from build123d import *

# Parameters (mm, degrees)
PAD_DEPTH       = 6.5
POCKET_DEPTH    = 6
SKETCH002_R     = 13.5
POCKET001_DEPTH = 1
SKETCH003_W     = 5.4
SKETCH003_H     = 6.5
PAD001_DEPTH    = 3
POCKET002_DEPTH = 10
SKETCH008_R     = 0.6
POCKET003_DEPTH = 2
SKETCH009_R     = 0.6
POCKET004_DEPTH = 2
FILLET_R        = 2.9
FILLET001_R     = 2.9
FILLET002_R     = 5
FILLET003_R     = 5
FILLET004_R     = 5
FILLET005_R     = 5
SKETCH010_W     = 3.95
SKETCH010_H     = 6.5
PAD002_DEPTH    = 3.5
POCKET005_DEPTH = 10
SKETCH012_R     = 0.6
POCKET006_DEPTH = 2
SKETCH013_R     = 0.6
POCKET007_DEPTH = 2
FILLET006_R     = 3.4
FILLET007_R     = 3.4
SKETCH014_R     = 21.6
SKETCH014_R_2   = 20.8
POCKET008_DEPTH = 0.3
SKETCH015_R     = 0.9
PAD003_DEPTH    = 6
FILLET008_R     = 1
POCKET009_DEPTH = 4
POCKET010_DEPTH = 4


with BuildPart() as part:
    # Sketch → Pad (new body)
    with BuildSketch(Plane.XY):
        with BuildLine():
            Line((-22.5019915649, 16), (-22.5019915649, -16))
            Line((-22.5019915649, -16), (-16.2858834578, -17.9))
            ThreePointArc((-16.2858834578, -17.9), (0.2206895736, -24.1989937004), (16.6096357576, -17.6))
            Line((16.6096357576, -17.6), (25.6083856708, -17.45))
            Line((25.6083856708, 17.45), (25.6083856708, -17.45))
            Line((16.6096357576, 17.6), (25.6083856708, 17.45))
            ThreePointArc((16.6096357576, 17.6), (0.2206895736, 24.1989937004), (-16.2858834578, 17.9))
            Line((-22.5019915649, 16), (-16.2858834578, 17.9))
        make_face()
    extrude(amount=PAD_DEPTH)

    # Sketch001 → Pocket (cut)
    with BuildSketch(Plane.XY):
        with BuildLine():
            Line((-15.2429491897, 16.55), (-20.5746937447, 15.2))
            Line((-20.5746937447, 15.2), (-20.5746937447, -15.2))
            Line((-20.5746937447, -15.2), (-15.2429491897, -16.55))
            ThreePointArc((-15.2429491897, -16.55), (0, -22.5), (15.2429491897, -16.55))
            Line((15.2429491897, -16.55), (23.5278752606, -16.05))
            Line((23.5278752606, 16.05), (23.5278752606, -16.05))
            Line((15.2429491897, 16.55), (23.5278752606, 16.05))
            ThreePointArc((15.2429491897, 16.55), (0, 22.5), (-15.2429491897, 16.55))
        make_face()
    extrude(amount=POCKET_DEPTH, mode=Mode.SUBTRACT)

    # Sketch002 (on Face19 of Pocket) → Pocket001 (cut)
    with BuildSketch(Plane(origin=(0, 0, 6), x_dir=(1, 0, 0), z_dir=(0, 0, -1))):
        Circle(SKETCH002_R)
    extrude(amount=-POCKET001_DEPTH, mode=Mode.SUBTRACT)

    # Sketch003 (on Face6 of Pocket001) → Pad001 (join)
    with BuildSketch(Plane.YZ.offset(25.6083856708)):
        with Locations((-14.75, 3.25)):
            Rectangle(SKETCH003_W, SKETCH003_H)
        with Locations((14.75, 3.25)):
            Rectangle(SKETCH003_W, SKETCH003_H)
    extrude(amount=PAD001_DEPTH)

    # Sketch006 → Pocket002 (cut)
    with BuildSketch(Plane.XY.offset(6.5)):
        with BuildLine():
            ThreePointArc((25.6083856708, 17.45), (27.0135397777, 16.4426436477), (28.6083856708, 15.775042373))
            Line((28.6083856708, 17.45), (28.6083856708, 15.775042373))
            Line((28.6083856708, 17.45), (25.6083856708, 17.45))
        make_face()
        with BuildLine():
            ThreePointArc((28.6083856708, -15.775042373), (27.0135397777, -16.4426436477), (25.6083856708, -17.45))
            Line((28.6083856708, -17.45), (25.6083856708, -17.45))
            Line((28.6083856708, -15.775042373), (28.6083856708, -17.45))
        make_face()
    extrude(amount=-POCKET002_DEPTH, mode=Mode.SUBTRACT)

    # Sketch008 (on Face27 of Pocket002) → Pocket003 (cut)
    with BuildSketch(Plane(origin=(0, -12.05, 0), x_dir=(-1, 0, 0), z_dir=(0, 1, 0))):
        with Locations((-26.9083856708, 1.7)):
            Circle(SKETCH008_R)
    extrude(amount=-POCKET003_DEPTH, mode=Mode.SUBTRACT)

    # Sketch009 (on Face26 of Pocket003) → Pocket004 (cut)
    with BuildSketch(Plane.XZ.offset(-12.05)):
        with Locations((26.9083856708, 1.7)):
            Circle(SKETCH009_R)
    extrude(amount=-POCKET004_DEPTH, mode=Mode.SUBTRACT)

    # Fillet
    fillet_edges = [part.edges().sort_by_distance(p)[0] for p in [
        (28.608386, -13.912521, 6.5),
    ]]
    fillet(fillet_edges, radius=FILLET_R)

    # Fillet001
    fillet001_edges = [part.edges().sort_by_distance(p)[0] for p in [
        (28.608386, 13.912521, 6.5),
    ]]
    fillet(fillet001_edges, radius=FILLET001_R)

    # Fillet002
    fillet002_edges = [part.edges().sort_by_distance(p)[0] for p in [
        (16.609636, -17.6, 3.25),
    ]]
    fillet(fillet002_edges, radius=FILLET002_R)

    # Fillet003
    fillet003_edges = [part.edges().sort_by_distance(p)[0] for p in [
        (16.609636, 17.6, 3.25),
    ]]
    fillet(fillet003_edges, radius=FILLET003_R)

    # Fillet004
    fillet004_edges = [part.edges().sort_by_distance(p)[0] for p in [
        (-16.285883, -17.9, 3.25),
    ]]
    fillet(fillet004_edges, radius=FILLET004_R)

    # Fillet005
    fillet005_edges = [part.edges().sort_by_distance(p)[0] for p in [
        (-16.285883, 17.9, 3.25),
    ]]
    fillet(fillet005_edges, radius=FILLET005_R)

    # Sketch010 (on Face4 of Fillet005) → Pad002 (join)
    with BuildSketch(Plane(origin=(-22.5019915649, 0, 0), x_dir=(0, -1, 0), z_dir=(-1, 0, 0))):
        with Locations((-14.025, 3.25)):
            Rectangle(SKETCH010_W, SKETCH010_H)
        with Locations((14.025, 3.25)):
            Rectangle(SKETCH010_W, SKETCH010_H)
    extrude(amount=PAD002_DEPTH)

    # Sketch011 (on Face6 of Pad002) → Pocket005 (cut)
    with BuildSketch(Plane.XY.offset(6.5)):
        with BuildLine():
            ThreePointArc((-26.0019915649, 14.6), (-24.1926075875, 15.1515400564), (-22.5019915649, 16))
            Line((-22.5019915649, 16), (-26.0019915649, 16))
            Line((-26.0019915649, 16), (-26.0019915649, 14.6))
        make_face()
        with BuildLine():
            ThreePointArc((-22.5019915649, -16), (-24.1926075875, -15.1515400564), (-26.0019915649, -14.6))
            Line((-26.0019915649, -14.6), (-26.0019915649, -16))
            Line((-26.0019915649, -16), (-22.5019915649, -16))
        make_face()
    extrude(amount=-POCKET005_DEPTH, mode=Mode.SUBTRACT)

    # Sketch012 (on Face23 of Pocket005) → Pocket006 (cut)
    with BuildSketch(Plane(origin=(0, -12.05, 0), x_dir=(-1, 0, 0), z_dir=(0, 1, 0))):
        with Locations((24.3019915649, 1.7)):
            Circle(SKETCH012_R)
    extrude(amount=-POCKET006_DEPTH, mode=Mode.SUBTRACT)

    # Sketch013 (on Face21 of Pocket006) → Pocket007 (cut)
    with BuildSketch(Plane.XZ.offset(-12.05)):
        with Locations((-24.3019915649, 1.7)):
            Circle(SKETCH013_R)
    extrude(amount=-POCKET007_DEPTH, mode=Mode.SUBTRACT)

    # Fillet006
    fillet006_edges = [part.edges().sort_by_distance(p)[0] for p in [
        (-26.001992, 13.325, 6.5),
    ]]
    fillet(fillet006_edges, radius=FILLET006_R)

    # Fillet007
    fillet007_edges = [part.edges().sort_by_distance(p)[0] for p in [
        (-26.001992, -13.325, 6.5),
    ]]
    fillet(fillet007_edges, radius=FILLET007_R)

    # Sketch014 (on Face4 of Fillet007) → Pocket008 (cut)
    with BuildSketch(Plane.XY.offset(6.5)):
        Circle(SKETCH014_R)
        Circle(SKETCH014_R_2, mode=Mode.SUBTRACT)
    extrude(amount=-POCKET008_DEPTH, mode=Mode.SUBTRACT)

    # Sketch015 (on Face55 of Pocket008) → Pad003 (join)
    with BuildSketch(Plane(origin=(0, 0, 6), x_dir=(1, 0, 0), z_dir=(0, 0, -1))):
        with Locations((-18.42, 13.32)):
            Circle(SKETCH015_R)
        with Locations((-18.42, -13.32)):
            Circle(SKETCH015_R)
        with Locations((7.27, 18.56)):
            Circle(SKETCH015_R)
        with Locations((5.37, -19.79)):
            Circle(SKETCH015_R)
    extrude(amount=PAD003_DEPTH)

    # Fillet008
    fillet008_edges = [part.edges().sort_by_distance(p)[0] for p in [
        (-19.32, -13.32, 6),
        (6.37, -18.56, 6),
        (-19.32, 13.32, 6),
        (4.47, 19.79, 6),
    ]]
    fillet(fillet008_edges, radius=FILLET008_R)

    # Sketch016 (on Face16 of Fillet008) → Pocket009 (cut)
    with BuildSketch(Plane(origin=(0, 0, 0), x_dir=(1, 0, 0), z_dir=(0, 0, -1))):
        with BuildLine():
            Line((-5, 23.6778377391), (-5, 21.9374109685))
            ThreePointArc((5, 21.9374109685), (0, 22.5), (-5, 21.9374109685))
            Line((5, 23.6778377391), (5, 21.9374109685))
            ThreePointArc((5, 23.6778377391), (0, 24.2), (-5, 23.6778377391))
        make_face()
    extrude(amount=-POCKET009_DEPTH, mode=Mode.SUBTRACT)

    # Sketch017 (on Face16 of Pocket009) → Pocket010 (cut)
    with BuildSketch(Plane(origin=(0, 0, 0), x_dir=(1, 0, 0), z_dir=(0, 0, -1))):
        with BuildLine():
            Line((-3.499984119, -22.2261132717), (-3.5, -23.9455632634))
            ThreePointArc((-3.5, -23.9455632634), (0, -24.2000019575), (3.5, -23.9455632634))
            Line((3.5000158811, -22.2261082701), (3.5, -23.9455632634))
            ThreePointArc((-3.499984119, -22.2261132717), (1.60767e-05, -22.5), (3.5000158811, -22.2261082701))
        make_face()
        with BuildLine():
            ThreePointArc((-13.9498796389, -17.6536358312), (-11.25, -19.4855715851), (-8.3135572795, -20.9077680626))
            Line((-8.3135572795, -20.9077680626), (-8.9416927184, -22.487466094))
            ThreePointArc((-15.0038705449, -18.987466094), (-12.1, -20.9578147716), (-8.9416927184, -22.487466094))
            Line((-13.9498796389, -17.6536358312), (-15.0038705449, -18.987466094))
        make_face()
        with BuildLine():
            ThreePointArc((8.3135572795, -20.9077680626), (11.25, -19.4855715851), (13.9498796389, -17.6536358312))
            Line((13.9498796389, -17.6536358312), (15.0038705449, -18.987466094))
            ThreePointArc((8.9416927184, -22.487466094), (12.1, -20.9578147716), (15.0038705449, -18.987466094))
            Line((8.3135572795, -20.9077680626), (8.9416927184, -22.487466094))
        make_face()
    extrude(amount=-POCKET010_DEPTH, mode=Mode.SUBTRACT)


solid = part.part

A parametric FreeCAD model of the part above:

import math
import FreeCAD as App
import Part
import Sketcher
Q = App.Units.Quantity


def edges_at(feature, points):
    """Names of the edges that pass closest to the given points."""
    edges = feature.Shape.Edges
    near = lambda p: min(range(len(edges)), key=lambda i: edges[i].distToShape(Part.Vertex(*p))[0])
    return sorted({f"Edge{near(p) + 1}" for p in points})


def add_polygon(sketch, points):
    """Adds a closed chain of lines whose ends are joined by coincident constraints."""
    first, n = sketch.GeometryCount, len(points)
    for a, b in zip(points, points[1:] + points[:1]):
        sketch.addGeometry(Part.LineSegment(App.Vector(*a, 0), App.Vector(*b, 0)), False)
    for i in range(n):
        sketch.addConstraint(Sketcher.Constraint("Coincident", first + i, 2, first + (i + 1) % n, 1))

doc = App.newDocument("Part")
params = doc.addObject("Spreadsheet::Sheet", "Params")
for row, (alias, value) in enumerate([
    ("sketch1_radius", "24.2 mm"),
    ("sketch1_height", "32 mm"),
    ("sketch1_length", "9 mm"),
    ("sketch1_height2", "34.9 mm"),
    ("sketch1_length2", "6.5 mm"),
    ("pad1_length", "6.5 mm"),
    ("sketch2_radius", "22.5 mm"),
    ("sketch2_height", "30.4 mm"),
    ("sketch2_height2", "32.1 mm"),
    ("sketch2_length", "5.5 mm"),
    ("sketch2_length2", "8.3 mm"),
    ("pocket1_length", "6 mm"),
    ("sketch3_diameter", "27 mm"),
    ("pocket2_length", "1 mm"),
    ("sketch4_width", "5.4 mm"),
    ("sketch4_height", "6.5 mm"),
    ("pad2_length", "3 mm"),
    ("sketch5_width", "3 mm"),
    ("pocket3_length", "10 mm"),
    ("sketch6_diameter", "1.2 mm"),
    ("pocket4_length", "2 mm"),
    ("sketch7_diameter", "1.2 mm"),
    ("pocket5_length", "2 mm"),
    ("fillet_radius", "2.9 mm"),
    ("fillet2_radius", "2.9 mm"),
    ("fillet3_radius", "5 mm"),
    ("fillet4_radius", "5 mm"),
    ("fillet5_radius", "5 mm"),
    ("fillet6_radius", "5 mm"),
    ("sketch8_height", "6.5 mm"),
    ("sketch8_width", "3.95 mm"),
    ("pad3_length", "3.5 mm"),
    ("sketch9_width", "3.5 mm"),
    ("sketch9_height", "1.4 mm"),
    ("pocket6_length", "10 mm"),
    ("sketch10_diameter", "1.2 mm"),
    ("pocket7_length", "2 mm"),
    ("sketch11_diameter", "1.2 mm"),
    ("pocket8_length", "2 mm"),
    ("fillet7_radius", "3.4 mm"),
    ("fillet8_radius", "3.4 mm"),
    ("sketch12_diameter", "43.2 mm"),
    ("sketch12_diameter2", "41.6 mm"),
    ("pocket9_length", "0.3 mm"),
    ("sketch13_diameter", "1.8 mm"),
    ("pad4_length", "6 mm"),
    ("fillet9_radius", "1 mm"),
    ("sketch14_radius", "22.5 mm"),
    ("sketch14_radius2", "24.2 mm"),
    ("pocket10_length", "4 mm"),
    ("sketch15_radius", "22.5 mm"),
    ("sketch15_radius2", "24.2 mm"),
    ("pocket11_length", "4 mm"),
], start=1):
    params.set(f"A{row}", alias)
    params.set(f"B{row}", "=" + value)
    params.setAlias(f"B{row}", alias)

body = doc.addObject("PartDesign::Body", "Body")

# Sketch on XY plane
sketch1 = body.newObject("Sketcher::SketchObject", "Sketch")
sketch1.AttachmentSupport = (doc.getObject("XY_Plane"), [""])
sketch1.MapMode = "FlatFace"
sketch1.addGeometry(Part.LineSegment(App.Vector(-23, 16, 0), App.Vector(-23, -16, 0)), False)
sketch1.addGeometry(Part.LineSegment(App.Vector(-23, -16, 0), App.Vector(-16, -18, 0)), False)
sketch1.addGeometry(Part.ArcOfCircle(Part.Circle(App.Vector(0, 0, 0), App.Vector(0, 0, 1), 24), math.radians(-132), math.radians(-47)), False)
sketch1.addGeometry(Part.LineSegment(App.Vector(17, -18, 0), App.Vector(26, -17, 0)), False)
sketch1.addGeometry(Part.LineSegment(App.Vector(26, -17, 0), App.Vector(26, 17, 0)), False)
sketch1.addGeometry(Part.LineSegment(App.Vector(26, 17, 0), App.Vector(17, 18, 0)), False)
sketch1.addGeometry(Part.ArcOfCircle(Part.Circle(App.Vector(0, 0, 0), App.Vector(0, 0, 1), 24), math.radians(47), math.radians(132)), False)
sketch1.addGeometry(Part.LineSegment(App.Vector(-16, 18, 0), App.Vector(-23, 16, 0)), False)
sketch1.addConstraint(Sketcher.Constraint("Coincident", 0, 2, 1, 1))
sketch1.addConstraint(Sketcher.Constraint("Coincident", 1, 2, 2, 1))
sketch1.addConstraint(Sketcher.Constraint("Coincident", 2, 2, 3, 1))
sketch1.addConstraint(Sketcher.Constraint("Coincident", 3, 2, 4, 1))
sketch1.addConstraint(Sketcher.Constraint("Coincident", 4, 2, 5, 1))
sketch1.addConstraint(Sketcher.Constraint("Coincident", 5, 2, 6, 1))
sketch1.addConstraint(Sketcher.Constraint("Coincident", 6, 2, 7, 1))
sketch1.addConstraint(Sketcher.Constraint("Coincident", 7, 2, 0, 1))
sketch1.addConstraint(Sketcher.Constraint("Vertical", 0))
sketch1.addConstraint(Sketcher.Constraint("Vertical", 4))
sketch1.addConstraint(Sketcher.Constraint("Coincident", 2, 3, -1, 1))
sketch1.addConstraint(Sketcher.Constraint("Coincident", 6, 3, -1, 1))
sketch1.addConstraint(Sketcher.Constraint("Equal", 2, 6))
sketch1.addConstraint(Sketcher.Constraint("Vertical", 2, 2, 5, 2))
sketch1.addConstraint(Sketcher.Constraint("Vertical", 1, 2, 6, 2))
sketch1.addConstraint(Sketcher.Constraint("Equal", 3, 5))
sketch1.addConstraint(Sketcher.Constraint("Equal", 1, 7))
sketch1.addConstraint(Sketcher.Constraint("Radius", 2, Q("24.2 mm")))
sketch1.addConstraint(Sketcher.Constraint("DistanceY", 0, 2, 0, 1, Q("32 mm")))
sketch1.addConstraint(Sketcher.Constraint("Distance", 3, Q("9 mm")))
sketch1.addConstraint(Sketcher.Constraint("DistanceY", 4, 1, 4, 2, Q("34.9 mm")))
sketch1.addConstraint(Sketcher.Constraint("Distance", 1, Q("6.5 mm")))
sketch1.addConstraint(Sketcher.Constraint("DistanceY", 1, 2, -1, 1, Q("17.9 mm")))
sketch1.addConstraint(Sketcher.Constraint("DistanceY", 2, 2, -1, 1, Q("17.6 mm")))
sketch1.setExpression("Constraints[17]", "Params.sketch1_radius")
sketch1.setExpression("Constraints[18]", "Params.sketch1_height")
sketch1.setExpression("Constraints[19]", "Params.sketch1_length")
sketch1.setExpression("Constraints[20]", "Params.sketch1_height2")
sketch1.setExpression("Constraints[21]", "Params.sketch1_length2")
pad1 = body.newObject("PartDesign::Pad", "Pad")
pad1.Profile = sketch1
pad1.setExpression("Length", "Params.pad1_length")

# Sketch on XY plane
sketch2 = body.newObject("Sketcher::SketchObject", "Sketch001")
sketch2.AttachmentSupport = (doc.getObject("XY_Plane"), [""])
sketch2.MapMode = "FlatFace"
sketch2.addGeometry(Part.LineSegment(App.Vector(-15, 17, 0), App.Vector(-21, 15, 0)), False)
sketch2.addGeometry(Part.LineSegment(App.Vector(-21, 15, 0), App.Vector(-21, -15, 0)), False)
sketch2.addGeometry(Part.LineSegment(App.Vector(-21, -15, 0), App.Vector(-15, -17, 0)), False)
sketch2.addGeometry(Part.ArcOfCircle(Part.Circle(App.Vector(0, 0, 0), App.Vector(0, 0, 1), 22), math.radians(-133), math.radians(-47)), False)
sketch2.addGeometry(Part.LineSegment(App.Vector(15, -17, 0), App.Vector(24, -16, 0)), False)
sketch2.addGeometry(Part.LineSegment(App.Vector(24, -16, 0), App.Vector(24, 16, 0)), False)
sketch2.addGeometry(Part.LineSegment(App.Vector(24, 16, 0), App.Vector(15, 17, 0)), False)
sketch2.addGeometry(Part.ArcOfCircle(Part.Circle(App.Vector(0, 0, 0), App.Vector(0, 0, 1), 22), math.radians(47), math.radians(133)), False)
sketch2.addConstraint(Sketcher.Constraint("Coincident", 0, 2, 1, 1))
sketch2.addConstraint(Sketcher.Constraint("Coincident", 1, 2, 2, 1))
sketch2.addConstraint(Sketcher.Constraint("Coincident", 2, 2, 3, 1))
sketch2.addConstraint(Sketcher.Constraint("Coincident", 3, 2, 4, 1))
sketch2.addConstraint(Sketcher.Constraint("Coincident", 4, 2, 5, 1))
sketch2.addConstraint(Sketcher.Constraint("Coincident", 5, 2, 6, 1))
sketch2.addConstraint(Sketcher.Constraint("Coincident", 6, 2, 7, 1))
sketch2.addConstraint(Sketcher.Constraint("Coincident", 7, 2, 0, 1))
sketch2.addConstraint(Sketcher.Constraint("Vertical", 1))
sketch2.addConstraint(Sketcher.Constraint("Vertical", 5))
sketch2.addConstraint(Sketcher.Constraint("Coincident", 3, 3, -1, 1))
sketch2.addConstraint(Sketcher.Constraint("Coincident", 7, 3, -1, 1))
sketch2.addConstraint(Sketcher.Constraint("Equal", 3, 7))
sketch2.addConstraint(Sketcher.Constraint("Horizontal", 2, 2, 3, 2))
sketch2.addConstraint(Sketcher.Constraint("Horizontal", 6, 2, 7, 2))
sketch2.addConstraint(Sketcher.Constraint("Vertical", 3, 2, 6, 2))
sketch2.addConstraint(Sketcher.Constraint("Equal", 0, 2))
sketch2.addConstraint(Sketcher.Constraint("Equal", 4, 6))
sketch2.addConstraint(Sketcher.Constraint("Radius", 3, Q("22.5 mm")))
sketch2.addConstraint(Sketcher.Constraint("DistanceY", 1, 2, 1, 1, Q("30.4 mm")))
sketch2.addConstraint(Sketcher.Constraint("DistanceY", 5, 1, 5, 2, Q("32.1 mm")))
sketch2.addConstraint(Sketcher.Constraint("Distance", 0, Q("5.5 mm")))
sketch2.addConstraint(Sketcher.Constraint("Distance", 4, Q("8.3 mm")))
sketch2.addConstraint(Sketcher.Constraint("DistanceY", 3, 2, 4, 2, Q("0.5 mm")))
sketch2.setExpression("Constraints[18]", "Params.sketch2_radius")
sketch2.setExpression("Constraints[19]", "Params.sketch2_height")
sketch2.setExpression("Constraints[20]", "Params.sketch2_height2")
sketch2.setExpression("Constraints[21]", "Params.sketch2_length")
sketch2.setExpression("Constraints[22]", "Params.sketch2_length2")
pocket1 = body.newObject("PartDesign::Pocket", "Pocket")
pocket1.Profile = sketch2
pocket1.setExpression("Length", "Params.pocket1_length")
pocket1.Reversed = True

# Sketch on XY plane
sketch3 = body.newObject("Sketcher::SketchObject", "Sketch002")
sketch3.AttachmentSupport = (doc.getObject("XY_Plane"), [""])
sketch3.MapMode = "FlatFace"
sketch3.AttachmentOffset = App.Placement(App.Vector(0, 0, 6), App.Rotation())
sketch3.addGeometry(Part.Circle(App.Vector(0, 0, 0), App.Vector(0, 0, 1), 14), False)
sketch3.addConstraint(Sketcher.Constraint("Coincident", 0, 3, -1, 1))
sketch3.addConstraint(Sketcher.Constraint("Diameter", 0, Q("27 mm")))
sketch3.setExpression("Constraints[1]", "Params.sketch3_diameter")
pocket2 = body.newObject("PartDesign::Pocket", "Pocket001")
pocket2.Profile = sketch3
pocket2.setExpression("Length", "Params.pocket2_length")
pocket2.Reversed = True

# Sketch on YZ plane
sketch4 = body.newObject("Sketcher::SketchObject", "Sketch003")
sketch4.AttachmentSupport = (doc.getObject("YZ_Plane"), [""])
sketch4.MapMode = "FlatFace"
sketch4.AttachmentOffset = App.Placement(App.Vector(0, 0, 25.608386), App.Rotation())
add_polygon(sketch4, [(-17, 6), (-17, 0), (-12, 0), (-12, 6)])  # lines 0-3
add_polygon(sketch4, [(12, 6), (12, 0), (17, 0), (17, 6)])  # lines 4-7
sketch4.addConstraint(Sketcher.Constraint("Vertical", 0))
sketch4.addConstraint(Sketcher.Constraint("Horizontal", 1))
sketch4.addConstraint(Sketcher.Constraint("Vertical", 2))
sketch4.addConstraint(Sketcher.Constraint("Horizontal", 3))
sketch4.addConstraint(Sketcher.Constraint("Vertical", 4))
sketch4.addConstraint(Sketcher.Constraint("Horizontal", 5))
sketch4.addConstraint(Sketcher.Constraint("Vertical", 6))
sketch4.addConstraint(Sketcher.Constraint("Horizontal", 7))
sketch4.addConstraint(Sketcher.Constraint("Symmetric", 1, 2, 4, 2, -1, 1))
sketch4.addConstraint(Sketcher.Constraint("Symmetric", 0, 2, 5, 2, -2))
sketch4.addConstraint(Sketcher.Constraint("Horizontal", 3, 2, 6, 2))
sketch4.addConstraint(Sketcher.Constraint("DistanceX", 1, 1, 1, 2, Q("5.4 mm")))
sketch4.addConstraint(Sketcher.Constraint("DistanceY", 0, 2, 0, 1, Q("6.5 mm")))
sketch4.addConstraint(Sketcher.Constraint("DistanceX", 1, 2, 4, 2, Q("24.1 mm")))
sketch4.setExpression("Constraints[19]", "Params.sketch4_width")
sketch4.setExpression("Constraints[20]", "Params.sketch4_height")
pad2 = body.newObject("PartDesign::Pad", "Pad001")
pad2.Profile = sketch4
pad2.setExpression("Length", "Params.pad2_length")

# Sketch on XY plane
sketch5 = body.newObject("Sketcher::SketchObject", "Sketch004")
sketch5.AttachmentSupport = (doc.getObject("XY_Plane"), [""])
sketch5.MapMode = "FlatFace"
sketch5.AttachmentOffset = App.Placement(App.Vector(0, 0, 6.5), App.Rotation())
sketch5.addGeometry(Part.ArcOfCircle(Part.Circle(App.Vector(30.8, 23.1, 0), App.Vector(0, 0, 1), 7.7), math.radians(-132), math.radians(-106)), False)
sketch5.addGeometry(Part.LineSegment(App.Vector(28.6, 15.8, 0), App.Vector(28.6, 17.4, 0)), False)
sketch5.addGeometry(Part.LineSegment(App.Vector(28.6, 17.4, 0), App.Vector(25.6, 17.4, 0)), False)
sketch5.addGeometry(Part.ArcOfCircle(Part.Circle(App.Vector(30.8, -23.1, 0), App.Vector(0, 0, 1), 7.7), math.radians(106), math.radians(132)), False)
sketch5.addGeometry(Part.LineSegment(App.Vector(25.6, -17.4, 0), App.Vector(28.6, -17.4, 0)), False)
sketch5.addGeometry(Part.LineSegment(App.Vector(28.6, -17.4, 0), App.Vector(28.6, -15.8, 0)), False)
sketch5.addConstraint(Sketcher.Constraint("Coincident", 0, 2, 1, 1))
sketch5.addConstraint(Sketcher.Constraint("Coincident", 1, 2, 2, 1))
sketch5.addConstraint(Sketcher.Constraint("Coincident", 2, 2, 0, 1))
sketch5.addConstraint(Sketcher.Constraint("Coincident", 3, 2, 4, 1))
sketch5.addConstraint(Sketcher.Constraint("Coincident", 4, 2, 5, 1))
sketch5.addConstraint(Sketcher.Constraint("Coincident", 5, 2, 3, 1))
sketch5.addConstraint(Sketcher.Constraint("Vertical", 1))
sketch5.addConstraint(Sketcher.Constraint("Horizontal", 2))
sketch5.addConstraint(Sketcher.Constraint("Horizontal", 4))
sketch5.addConstraint(Sketcher.Constraint("Vertical", 5))
sketch5.addConstraint(Sketcher.Constraint("Equal", 0, 3))
sketch5.addConstraint(Sketcher.Constraint("Symmetric", 0, 3, 3, 3, -1))
sketch5.addConstraint(Sketcher.Constraint("Symmetric", 1, 2, 4, 2, -1))
sketch5.addConstraint(Sketcher.Constraint("DistanceX", 2, 2, 2, 1, Q("3 mm")))
sketch5.addConstraint(Sketcher.Constraint("DistanceY", 3, 3, 0, 3, Q("46.3 mm")))
sketch5.addConstraint(Sketcher.Constraint("DistanceY", 1, 2, 0, 3, Q("5.7 mm")))
sketch5.addConstraint(Sketcher.Constraint("Radius", 0, Q("7.681959 mm")))
sketch5.addConstraint(Sketcher.Constraint("DistanceX", -1, 1, 0, 3, Q("30.758386 mm")))
sketch5.setExpression("Constraints[13]", "Params.sketch5_width")
pocket3 = body.newObject("PartDesign::Pocket", "Pocket002")
pocket3.Profile = sketch5
pocket3.setExpression("Length", "Params.pocket3_length")

# Sketch on XZ plane
sketch6 = body.newObject("Sketcher::SketchObject", "Sketch005")
sketch6.AttachmentSupport = (doc.getObject("XZ_Plane"), [""])
sketch6.MapMode = "FlatFace"
sketch6.AttachmentOffset = App.Placement(App.Vector(0, 0, 12.05), App.Rotation())
sketch6.addGeometry(Part.Circle(App.Vector(26.9, 1.7, 0), App.Vector(0, 0, 1), 0.6), False)
sketch6.addConstraint(Sketcher.Constraint("Diameter", 0, Q("1.2 mm")))
sketch6.addConstraint(Sketcher.Constraint("DistanceY", -1, 1, 0, 3, Q("1.7 mm")))
sketch6.addConstraint(Sketcher.Constraint("DistanceX", -1, 1, 0, 3, Q("26.908386 mm")))
sketch6.setExpression("Constraints[0]", "Params.sketch6_diameter")
pocket4 = body.newObject("PartDesign::Pocket", "Pocket003")
pocket4.Profile = sketch6
pocket4.setExpression("Length", "Params.pocket4_length")
pocket4.Reversed = True

# Sketch on XZ plane
sketch7 = body.newObject("Sketcher::SketchObject", "Sketch006")
sketch7.AttachmentSupport = (doc.getObject("XZ_Plane"), [""])
sketch7.MapMode = "FlatFace"
sketch7.AttachmentOffset = App.Placement(App.Vector(0, 0, -12.05), App.Rotation())
sketch7.addGeometry(Part.Circle(App.Vector(26.9, 1.7, 0), App.Vector(0, 0, 1), 0.6), False)
sketch7.addConstraint(Sketcher.Constraint("Diameter", 0, Q("1.2 mm")))
sketch7.addConstraint(Sketcher.Constraint("DistanceY", -1, 1, 0, 3, Q("1.7 mm")))
sketch7.addConstraint(Sketcher.Constraint("DistanceX", -1, 1, 0, 3, Q("26.908386 mm")))
sketch7.setExpression("Constraints[0]", "Params.sketch7_diameter")
pocket5 = body.newObject("PartDesign::Pocket", "Pocket004")
pocket5.Profile = sketch7
pocket5.setExpression("Length", "Params.pocket5_length")
doc.recompute()

fillet = body.newObject("PartDesign::Fillet", "Fillet")
fillet.Base = (pocket5, edges_at(pocket5, [(28.608, -13.913, 6.5)]))
fillet.setExpression("Radius", "Params.fillet_radius")
doc.recompute()

fillet2 = body.newObject("PartDesign::Fillet", "Fillet001")
fillet2.Base = (fillet, edges_at(fillet, [(28.608, 13.913, 6.5)]))
fillet2.setExpression("Radius", "Params.fillet2_radius")
doc.recompute()

fillet3 = body.newObject("PartDesign::Fillet", "Fillet002")
fillet3.Base = (fillet2, edges_at(fillet2, [(16.61, -17.6, 3.25)]))
fillet3.setExpression("Radius", "Params.fillet3_radius")
doc.recompute()

fillet4 = body.newObject("PartDesign::Fillet", "Fillet003")
fillet4.Base = (fillet3, edges_at(fillet3, [(16.61, 17.6, 3.25)]))
fillet4.setExpression("Radius", "Params.fillet4_radius")
doc.recompute()

fillet5 = body.newObject("PartDesign::Fillet", "Fillet004")
fillet5.Base = (fillet4, edges_at(fillet4, [(-16.286, -17.9, 3.25)]))
fillet5.setExpression("Radius", "Params.fillet5_radius")
doc.recompute()

fillet6 = body.newObject("PartDesign::Fillet", "Fillet005")
fillet6.Base = (fillet5, edges_at(fillet5, [(-16.286, 17.9, 3.25)]))
fillet6.setExpression("Radius", "Params.fillet6_radius")

# Sketch on YZ plane
sketch8 = body.newObject("Sketcher::SketchObject", "Sketch007")
sketch8.AttachmentSupport = (doc.getObject("YZ_Plane"), [""])
sketch8.MapMode = "FlatFace"
sketch8.AttachmentOffset = App.Placement(App.Vector(0, 0, -22.501992), App.Rotation())
add_polygon(sketch8, [(16, 6.5), (16, 0), (12.1, 0), (12.1, 6.5)])  # lines 0-3
add_polygon(sketch8, [(-12.1, 6.5), (-12.1, 0), (-16, 0), (-16, 6.5)])  # lines 4-7
sketch8.addConstraint(Sketcher.Constraint("Vertical", 0))
sketch8.addConstraint(Sketcher.Constraint("Horizontal", 1))
sketch8.addConstraint(Sketcher.Constraint("Vertical", 2))
sketch8.addConstraint(Sketcher.Constraint("Horizontal", 3))
sketch8.addConstraint(Sketcher.Constraint("Vertical", 4))
sketch8.addConstraint(Sketcher.Constraint("Horizontal", 5))
sketch8.addConstraint(Sketcher.Constraint("Vertical", 6))
sketch8.addConstraint(Sketcher.Constraint("Horizontal", 7))
sketch8.addConstraint(Sketcher.Constraint("Symmetric", 1, 2, 4, 2, -1, 1))
sketch8.addConstraint(Sketcher.Constraint("Symmetric", 0, 2, 5, 2, -2))
sketch8.addConstraint(Sketcher.Constraint("Horizontal", 3, 2, 6, 2))
sketch8.addConstraint(Sketcher.Constraint("DistanceY", 0, 2, 0, 1, Q("6.5 mm")))
sketch8.addConstraint(Sketcher.Constraint("DistanceX", -1, 1, 0, 2, Q("16 mm")))
sketch8.addConstraint(Sketcher.Constraint("DistanceX", 1, 2, 1, 1, Q("3.95 mm")))
sketch8.setExpression("Constraints[19]", "Params.sketch8_height")
sketch8.setExpression("Constraints[21]", "Params.sketch8_width")
pad3 = body.newObject("PartDesign::Pad", "Pad002")
pad3.Profile = sketch8
pad3.setExpression("Length", "Params.pad3_length")
pad3.Reversed = True

# Sketch on XY plane
sketch9 = body.newObject("Sketcher::SketchObject", "Sketch008")
sketch9.AttachmentSupport = (doc.getObject("XY_Plane"), [""])
sketch9.MapMode = "FlatFace"
sketch9.AttachmentOffset = App.Placement(App.Vector(0, 0, 6.5), App.Rotation())
sketch9.addGeometry(Part.ArcOfCircle(Part.Circle(App.Vector(-28.3, 25.5, 0), App.Vector(0, 0, 1), 11.2), math.radians(-77.9), math.radians(-58.5)), False)
sketch9.addGeometry(Part.LineSegment(App.Vector(-22.5, 16, 0), App.Vector(-26, 16, 0)), False)
sketch9.addGeometry(Part.LineSegment(App.Vector(-26, 16, 0), App.Vector(-26, 14.6, 0)), False)
sketch9.addGeometry(Part.ArcOfCircle(Part.Circle(App.Vector(-28.3, -25.5, 0), App.Vector(0, 0, 1), 11.2), math.radians(58.5), math.radians(77.9)), False)
sketch9.addGeometry(Part.LineSegment(App.Vector(-26, -14.6, 0), App.Vector(-26, -16, 0)), False)
sketch9.addGeometry(Part.LineSegment(App.Vector(-26, -16, 0), App.Vector(-22.5, -16, 0)), False)
sketch9.addConstraint(Sketcher.Constraint("Coincident", 0, 2, 1, 1))
sketch9.addConstraint(Sketcher.Constraint("Coincident", 1, 2, 2, 1))
sketch9.addConstraint(Sketcher.Constraint("Coincident", 2, 2, 0, 1))
sketch9.addConstraint(Sketcher.Constraint("Coincident", 3, 2, 4, 1))
sketch9.addConstraint(Sketcher.Constraint("Coincident", 4, 2, 5, 1))
sketch9.addConstraint(Sketcher.Constraint("Coincident", 5, 2, 3, 1))
sketch9.addConstraint(Sketcher.Constraint("Horizontal", 1))
sketch9.addConstraint(Sketcher.Constraint("Vertical", 2))
sketch9.addConstraint(Sketcher.Constraint("Vertical", 4))
sketch9.addConstraint(Sketcher.Constraint("Horizontal", 5))
sketch9.addConstraint(Sketcher.Constraint("Equal", 0, 3))
sketch9.addConstraint(Sketcher.Constraint("Symmetric", 0, 3, 3, 3, -1))
sketch9.addConstraint(Sketcher.Constraint("Symmetric", 1, 2, 4, 2, -1))
sketch9.addConstraint(Sketcher.Constraint("DistanceX", 1, 2, 1, 1, Q("3.5 mm")))
sketch9.addConstraint(Sketcher.Constraint("DistanceY", 2, 2, 2, 1, Q("1.4 mm")))
sketch9.addConstraint(Sketcher.Constraint("DistanceY", -1, 1, 0, 2, Q("16 mm")))
sketch9.addConstraint(Sketcher.Constraint("DistanceY", -1, 1, 0, 3, Q("25.54 mm")))
sketch9.addConstraint(Sketcher.Constraint("DistanceX", 0, 3, -1, 1, Q("28.347992 mm")))
sketch9.setExpression("Constraints[13]", "Params.sketch9_width")
sketch9.setExpression("Constraints[14]", "Params.sketch9_height")
pocket6 = body.newObject("PartDesign::Pocket", "Pocket005")
pocket6.Profile = sketch9
pocket6.setExpression("Length", "Params.pocket6_length")

# Sketch on XZ plane
sketch10 = body.newObject("Sketcher::SketchObject", "Sketch009")
sketch10.AttachmentSupport = (doc.getObject("XZ_Plane"), [""])
sketch10.MapMode = "FlatFace"
sketch10.AttachmentOffset = App.Placement(App.Vector(0, 0, 12.05), App.Rotation())
sketch10.addGeometry(Part.Circle(App.Vector(-24.3, 1.7, 0), App.Vector(0, 0, 1), 0.6), False)
sketch10.addConstraint(Sketcher.Constraint("Diameter", 0, Q("1.2 mm")))
sketch10.addConstraint(Sketcher.Constraint("DistanceY", -1, 1, 0, 3, Q("1.7 mm")))
sketch10.addConstraint(Sketcher.Constraint("DistanceX", 0, 3, -1, 1, Q("24.301992 mm")))
sketch10.setExpression("Constraints[0]", "Params.sketch10_diameter")
pocket7 = body.newObject("PartDesign::Pocket", "Pocket006")
pocket7.Profile = sketch10
pocket7.setExpression("Length", "Params.pocket7_length")
pocket7.Reversed = True

# Sketch on XZ plane
sketch11 = body.newObject("Sketcher::SketchObject", "Sketch010")
sketch11.AttachmentSupport = (doc.getObject("XZ_Plane"), [""])
sketch11.MapMode = "FlatFace"
sketch11.AttachmentOffset = App.Placement(App.Vector(0, 0, -12.05), App.Rotation())
sketch11.addGeometry(Part.Circle(App.Vector(-24.3, 1.7, 0), App.Vector(0, 0, 1), 0.6), False)
sketch11.addConstraint(Sketcher.Constraint("Diameter", 0, Q("1.2 mm")))
sketch11.addConstraint(Sketcher.Constraint("DistanceY", -1, 1, 0, 3, Q("1.7 mm")))
sketch11.addConstraint(Sketcher.Constraint("DistanceX", 0, 3, -1, 1, Q("24.301992 mm")))
sketch11.setExpression("Constraints[0]", "Params.sketch11_diameter")
pocket8 = body.newObject("PartDesign::Pocket", "Pocket007")
pocket8.Profile = sketch11
pocket8.setExpression("Length", "Params.pocket8_length")
doc.recompute()

fillet7 = body.newObject("PartDesign::Fillet", "Fillet006")
fillet7.Base = (pocket8, edges_at(pocket8, [(-26.002, 13.325, 6.5)]))
fillet7.setExpression("Radius", "Params.fillet7_radius")
doc.recompute()

fillet8 = body.newObject("PartDesign::Fillet", "Fillet007")
fillet8.Base = (fillet7, edges_at(fillet7, [(-26.002, -13.325, 6.5)]))
fillet8.setExpression("Radius", "Params.fillet8_radius")

# Sketch on XY plane
sketch12 = body.newObject("Sketcher::SketchObject", "Sketch011")
sketch12.AttachmentSupport = (doc.getObject("XY_Plane"), [""])
sketch12.MapMode = "FlatFace"
sketch12.AttachmentOffset = App.Placement(App.Vector(0, 0, 6.5), App.Rotation())
sketch12.addGeometry(Part.Circle(App.Vector(0, 0, 0), App.Vector(0, 0, 1), 22), False)
sketch12.addGeometry(Part.Circle(App.Vector(0, 0, 0), App.Vector(0, 0, 1), 21), False)
sketch12.addConstraint(Sketcher.Constraint("Coincident", 0, 3, -1, 1))
sketch12.addConstraint(Sketcher.Constraint("Coincident", 1, 3, -1, 1))
sketch12.addConstraint(Sketcher.Constraint("Diameter", 0, Q("43.2 mm")))
sketch12.addConstraint(Sketcher.Constraint("Diameter", 1, Q("41.6 mm")))
sketch12.setExpression("Constraints[2]", "Params.sketch12_diameter")
sketch12.setExpression("Constraints[3]", "Params.sketch12_diameter2")
pocket9 = body.newObject("PartDesign::Pocket", "Pocket008")
pocket9.Profile = sketch12
pocket9.setExpression("Length", "Params.pocket9_length")

# Sketch on XY plane
sketch13 = body.newObject("Sketcher::SketchObject", "Sketch012")
sketch13.AttachmentSupport = (doc.getObject("XY_Plane"), [""])
sketch13.MapMode = "FlatFace"
sketch13.AttachmentOffset = App.Placement(App.Vector(0, 0, 6), App.Rotation())
sketch13.addGeometry(Part.Circle(App.Vector(-18.4, -13.3, 0), App.Vector(0, 0, 1), 0.9), False)
sketch13.addGeometry(Part.Circle(App.Vector(-18.4, 13.3, 0), App.Vector(0, 0, 1), 0.9), False)
sketch13.addGeometry(Part.Circle(App.Vector(7.3, -18.6, 0), App.Vector(0, 0, 1), 0.9), False)
sketch13.addGeometry(Part.Circle(App.Vector(5.4, 19.8, 0), App.Vector(0, 0, 1), 0.9), False)
sketch13.addConstraint(Sketcher.Constraint("Equal", 0, 1))
sketch13.addConstraint(Sketcher.Constraint("Equal", 1, 2))
sketch13.addConstraint(Sketcher.Constraint("Equal", 2, 3))
sketch13.addConstraint(Sketcher.Constraint("Symmetric", 0, 3, 1, 3, -1))
sketch13.addConstraint(Sketcher.Constraint("Diameter", 0, Q("1.8 mm")))
sketch13.addConstraint(Sketcher.Constraint("DistanceX", 3, 3, 2, 3, Q("1.9 mm")))
sketch13.addConstraint(Sketcher.Constraint("DistanceX", 0, 3, -1, 1, Q("18.42 mm")))
sketch13.addConstraint(Sketcher.Constraint("DistanceY", 0, 3, -1, 1, Q("13.32 mm")))
sketch13.addConstraint(Sketcher.Constraint("DistanceX", -1, 1, 2, 3, Q("7.27 mm")))
sketch13.addConstraint(Sketcher.Constraint("DistanceY", 2, 3, -1, 1, Q("18.56 mm")))
sketch13.addConstraint(Sketcher.Constraint("DistanceY", -1, 1, 3, 3, Q("19.79 mm")))
sketch13.setExpression("Constraints[4]", "Params.sketch13_diameter")
pad4 = body.newObject("PartDesign::Pad", "Pad003")
pad4.Profile = sketch13
pad4.setExpression("Length", "Params.pad4_length")
pad4.Reversed = True
doc.recompute()

fillet9 = body.newObject("PartDesign::Fillet", "Fillet008")
fillet9.Base = (pad4, edges_at(pad4, [
    (-19.32, -13.32, 6),
    (6.37, -18.56, 6),
    (-19.32, 13.32, 6),
    (4.47, 19.79, 6),
]))
fillet9.setExpression("Radius", "Params.fillet9_radius")

# Sketch on XY plane
sketch14 = body.newObject("Sketcher::SketchObject", "Sketch013")
sketch14.AttachmentSupport = (doc.getObject("XY_Plane"), [""])
sketch14.MapMode = "FlatFace"
sketch14.addGeometry(Part.LineSegment(App.Vector(-5, -23.7, 0), App.Vector(-5, -21.9, 0)), False)
sketch14.addGeometry(Part.ArcOfCircle(Part.Circle(App.Vector(0, 0, 0), App.Vector(0, 0, 1), 22.5), math.radians(-103), math.radians(-77)), False)
sketch14.addGeometry(Part.LineSegment(App.Vector(5, -21.9, 0), App.Vector(5, -23.7, 0)), False)
sketch14.addGeometry(Part.ArcOfCircle(Part.Circle(App.Vector(0, 0, 0), App.Vector(0, 0, 1), 24.2), math.radians(-102), math.radians(-78)), False)
sketch14.addConstraint(Sketcher.Constraint("Coincident", 0, 2, 1, 1))
sketch14.addConstraint(Sketcher.Constraint("Coincident", 1, 2, 2, 1))
sketch14.addConstraint(Sketcher.Constraint("Coincident", 2, 2, 3, 2))
sketch14.addConstraint(Sketcher.Constraint("Coincident", 3, 1, 0, 1))
sketch14.addConstraint(Sketcher.Constraint("Vertical", 0))
sketch14.addConstraint(Sketcher.Constraint("Vertical", 2))
sketch14.addConstraint(Sketcher.Constraint("Coincident", 1, 3, -1, 1))
sketch14.addConstraint(Sketcher.Constraint("Coincident", 3, 3, -1, 1))
sketch14.addConstraint(Sketcher.Constraint("Horizontal", 0, 2, 1, 2))
sketch14.addConstraint(Sketcher.Constraint("Radius", 1, Q("22.5 mm")))
sketch14.addConstraint(Sketcher.Constraint("Radius", 3, Q("24.2 mm")))
sketch14.addConstraint(Sketcher.Constraint("DistanceX", 0, 2, -1, 1, Q("5 mm")))
sketch14.setExpression("Constraints[9]", "Params.sketch14_radius")
sketch14.setExpression("Constraints[10]", "Params.sketch14_radius2")
pocket10 = body.newObject("PartDesign::Pocket", "Pocket009")
pocket10.Profile = sketch14
pocket10.setExpression("Length", "Params.pocket10_length")
pocket10.Reversed = True

# Sketch on XY plane
sketch15 = body.newObject("Sketcher::SketchObject", "Sketch014")
sketch15.AttachmentSupport = (doc.getObject("XY_Plane"), [""])
sketch15.MapMode = "FlatFace"
sketch15.addGeometry(Part.LineSegment(App.Vector(-3.5, 22.2, 0), App.Vector(-3.5, 23.9, 0)), False)
sketch15.addGeometry(Part.ArcOfCircle(Part.Circle(App.Vector(0, 0, 0), App.Vector(0, 0, 1), 24.2), math.radians(81.68), math.radians(98.32)), False)
sketch15.addGeometry(Part.LineSegment(App.Vector(3.5, 23.9, 0), App.Vector(3.5, 22.2, 0)), False)
sketch15.addGeometry(Part.ArcOfCircle(Part.Circle(App.Vector(0, 0, 0), App.Vector(0, 0, 1), 22.5), math.radians(81.05), math.radians(98.95)), False)
sketch15.addGeometry(Part.ArcOfCircle(Part.Circle(App.Vector(0, 0, 0), App.Vector(0, 0, 1), 22.5), math.radians(111.68), math.radians(128.32)), False)
sketch15.addGeometry(Part.LineSegment(App.Vector(-13.9, 17.7, 0), App.Vector(-15, 19, 0)), False)
sketch15.addGeometry(Part.ArcOfCircle(Part.Circle(App.Vector(0, 0, 0), App.Vector(0, 0, 1), 24.2), math.radians(111.68), math.radians(128.32)), False)
sketch15.addGeometry(Part.LineSegment(App.Vector(-8.9, 22.5, 0), App.Vector(-8.3, 20.9, 0)), False)
sketch15.addGeometry(Part.ArcOfCircle(Part.Circle(App.Vector(0, 0, 0), App.Vector(0, 0, 1), 22.5), math.radians(51.68), math.radians(68.32)), False)
sketch15.addGeometry(Part.LineSegment(App.Vector(8.3, 20.9, 0), App.Vector(8.9, 22.5, 0)), False)
sketch15.addGeometry(Part.ArcOfCircle(Part.Circle(App.Vector(0, 0, 0), App.Vector(0, 0, 1), 24.2), math.radians(51.68), math.radians(68.32)), False)
sketch15.addGeometry(Part.LineSegment(App.Vector(15, 19, 0), App.Vector(13.9, 17.7, 0)), False)
sketch15.addConstraint(Sketcher.Constraint("Coincident", 0, 2, 1, 2))
sketch15.addConstraint(Sketcher.Constraint("Coincident", 1, 1, 2, 1))
sketch15.addConstraint(Sketcher.Constraint("Coincident", 2, 2, 3, 1))
sketch15.addConstraint(Sketcher.Constraint("Coincident", 3, 2, 0, 1))
sketch15.addConstraint(Sketcher.Constraint("Coincident", 4, 2, 5, 1))
sketch15.addConstraint(Sketcher.Constraint("Coincident", 5, 2, 6, 2))
sketch15.addConstraint(Sketcher.Constraint("Coincident", 6, 1, 7, 1))
sketch15.addConstraint(Sketcher.Constraint("Coincident", 7, 2, 4, 1))
sketch15.addConstraint(Sketcher.Constraint("Coincident", 8, 2, 9, 1))
sketch15.addConstraint(Sketcher.Constraint("Coincident", 9, 2, 10, 2))
sketch15.addConstraint(Sketcher.Constraint("Coincident", 10, 1, 11, 1))
sketch15.addConstraint(Sketcher.Constraint("Coincident", 11, 2, 8, 1))
sketch15.addConstraint(Sketcher.Constraint("Coincident", 3, 3, -1, 1))
sketch15.addConstraint(Sketcher.Constraint("Coincident", 4, 3, -1, 1))
sketch15.addConstraint(Sketcher.Constraint("Coincident", 6, 3, -1, 1))
sketch15.addConstraint(Sketcher.Constraint("Coincident", 8, 3, -1, 1))
sketch15.addConstraint(Sketcher.Constraint("Coincident", 10, 3, -1, 1))
sketch15.addConstraint(Sketcher.Constraint("Equal", 3, 4))
sketch15.addConstraint(Sketcher.Constraint("Equal", 4, 8))
sketch15.addConstraint(Sketcher.Constraint("Equal", 6, 10))
sketch15.addConstraint(Sketcher.Constraint("Symmetric", 0, 2, 1, 1, -2))
sketch15.addConstraint(Sketcher.Constraint("Parallel", 0, 2))
sketch15.addConstraint(Sketcher.Constraint("Horizontal", 7, 2, 8, 2))
sketch15.addConstraint(Sketcher.Constraint("Horizontal", 6, 1, 9, 2))
sketch15.addConstraint(Sketcher.Constraint("Horizontal", 5, 2, 10, 1))
sketch15.addConstraint(Sketcher.Constraint("Horizontal", 4, 2, 11, 2))
sketch15.addConstraint(Sketcher.Constraint("Radius", 3, Q("22.5 mm")))
sketch15.addConstraint(Sketcher.Constraint("Radius", 6, Q("24.2 mm")))
sketch15.addConstraint(Sketcher.Constraint("DistanceX", 0, 2, 1, 1, Q("7 mm")))
sketch15.addConstraint(Sketcher.Constraint("DistanceY", 5, 2, 6, 1, Q("3.5 mm")))
sketch15.addConstraint(Sketcher.Constraint("Radius", 1, Q("24.199816 mm")))
sketch15.addConstraint(Sketcher.Constraint("DistanceY", 7, 2, 6, 1, Q("1.579698 mm")))
sketch15.addConstraint(Sketcher.Constraint("Distance", 0, Q("1.71945 mm")))
sketch15.addConstraint(Sketcher.Constraint("DistanceY", -1, 1, 2, 2, Q("22.226108 mm")))
sketch15.addConstraint(Sketcher.Constraint("DistanceX", 4, 2, -1, 1, Q("13.94988 mm")))
sketch15.addConstraint(Sketcher.Constraint("DistanceX", 5, 2, -1, 1, Q("15.003871 mm")))
sketch15.setExpression("Constraints[26]", "Params.sketch15_radius")
sketch15.setExpression("Constraints[27]", "Params.sketch15_radius2")
pocket11 = body.newObject("PartDesign::Pocket", "Pocket010")
pocket11.Profile = sketch15
pocket11.setExpression("Length", "Params.pocket11_length")
pocket11.Reversed = True

doc.recompute()
